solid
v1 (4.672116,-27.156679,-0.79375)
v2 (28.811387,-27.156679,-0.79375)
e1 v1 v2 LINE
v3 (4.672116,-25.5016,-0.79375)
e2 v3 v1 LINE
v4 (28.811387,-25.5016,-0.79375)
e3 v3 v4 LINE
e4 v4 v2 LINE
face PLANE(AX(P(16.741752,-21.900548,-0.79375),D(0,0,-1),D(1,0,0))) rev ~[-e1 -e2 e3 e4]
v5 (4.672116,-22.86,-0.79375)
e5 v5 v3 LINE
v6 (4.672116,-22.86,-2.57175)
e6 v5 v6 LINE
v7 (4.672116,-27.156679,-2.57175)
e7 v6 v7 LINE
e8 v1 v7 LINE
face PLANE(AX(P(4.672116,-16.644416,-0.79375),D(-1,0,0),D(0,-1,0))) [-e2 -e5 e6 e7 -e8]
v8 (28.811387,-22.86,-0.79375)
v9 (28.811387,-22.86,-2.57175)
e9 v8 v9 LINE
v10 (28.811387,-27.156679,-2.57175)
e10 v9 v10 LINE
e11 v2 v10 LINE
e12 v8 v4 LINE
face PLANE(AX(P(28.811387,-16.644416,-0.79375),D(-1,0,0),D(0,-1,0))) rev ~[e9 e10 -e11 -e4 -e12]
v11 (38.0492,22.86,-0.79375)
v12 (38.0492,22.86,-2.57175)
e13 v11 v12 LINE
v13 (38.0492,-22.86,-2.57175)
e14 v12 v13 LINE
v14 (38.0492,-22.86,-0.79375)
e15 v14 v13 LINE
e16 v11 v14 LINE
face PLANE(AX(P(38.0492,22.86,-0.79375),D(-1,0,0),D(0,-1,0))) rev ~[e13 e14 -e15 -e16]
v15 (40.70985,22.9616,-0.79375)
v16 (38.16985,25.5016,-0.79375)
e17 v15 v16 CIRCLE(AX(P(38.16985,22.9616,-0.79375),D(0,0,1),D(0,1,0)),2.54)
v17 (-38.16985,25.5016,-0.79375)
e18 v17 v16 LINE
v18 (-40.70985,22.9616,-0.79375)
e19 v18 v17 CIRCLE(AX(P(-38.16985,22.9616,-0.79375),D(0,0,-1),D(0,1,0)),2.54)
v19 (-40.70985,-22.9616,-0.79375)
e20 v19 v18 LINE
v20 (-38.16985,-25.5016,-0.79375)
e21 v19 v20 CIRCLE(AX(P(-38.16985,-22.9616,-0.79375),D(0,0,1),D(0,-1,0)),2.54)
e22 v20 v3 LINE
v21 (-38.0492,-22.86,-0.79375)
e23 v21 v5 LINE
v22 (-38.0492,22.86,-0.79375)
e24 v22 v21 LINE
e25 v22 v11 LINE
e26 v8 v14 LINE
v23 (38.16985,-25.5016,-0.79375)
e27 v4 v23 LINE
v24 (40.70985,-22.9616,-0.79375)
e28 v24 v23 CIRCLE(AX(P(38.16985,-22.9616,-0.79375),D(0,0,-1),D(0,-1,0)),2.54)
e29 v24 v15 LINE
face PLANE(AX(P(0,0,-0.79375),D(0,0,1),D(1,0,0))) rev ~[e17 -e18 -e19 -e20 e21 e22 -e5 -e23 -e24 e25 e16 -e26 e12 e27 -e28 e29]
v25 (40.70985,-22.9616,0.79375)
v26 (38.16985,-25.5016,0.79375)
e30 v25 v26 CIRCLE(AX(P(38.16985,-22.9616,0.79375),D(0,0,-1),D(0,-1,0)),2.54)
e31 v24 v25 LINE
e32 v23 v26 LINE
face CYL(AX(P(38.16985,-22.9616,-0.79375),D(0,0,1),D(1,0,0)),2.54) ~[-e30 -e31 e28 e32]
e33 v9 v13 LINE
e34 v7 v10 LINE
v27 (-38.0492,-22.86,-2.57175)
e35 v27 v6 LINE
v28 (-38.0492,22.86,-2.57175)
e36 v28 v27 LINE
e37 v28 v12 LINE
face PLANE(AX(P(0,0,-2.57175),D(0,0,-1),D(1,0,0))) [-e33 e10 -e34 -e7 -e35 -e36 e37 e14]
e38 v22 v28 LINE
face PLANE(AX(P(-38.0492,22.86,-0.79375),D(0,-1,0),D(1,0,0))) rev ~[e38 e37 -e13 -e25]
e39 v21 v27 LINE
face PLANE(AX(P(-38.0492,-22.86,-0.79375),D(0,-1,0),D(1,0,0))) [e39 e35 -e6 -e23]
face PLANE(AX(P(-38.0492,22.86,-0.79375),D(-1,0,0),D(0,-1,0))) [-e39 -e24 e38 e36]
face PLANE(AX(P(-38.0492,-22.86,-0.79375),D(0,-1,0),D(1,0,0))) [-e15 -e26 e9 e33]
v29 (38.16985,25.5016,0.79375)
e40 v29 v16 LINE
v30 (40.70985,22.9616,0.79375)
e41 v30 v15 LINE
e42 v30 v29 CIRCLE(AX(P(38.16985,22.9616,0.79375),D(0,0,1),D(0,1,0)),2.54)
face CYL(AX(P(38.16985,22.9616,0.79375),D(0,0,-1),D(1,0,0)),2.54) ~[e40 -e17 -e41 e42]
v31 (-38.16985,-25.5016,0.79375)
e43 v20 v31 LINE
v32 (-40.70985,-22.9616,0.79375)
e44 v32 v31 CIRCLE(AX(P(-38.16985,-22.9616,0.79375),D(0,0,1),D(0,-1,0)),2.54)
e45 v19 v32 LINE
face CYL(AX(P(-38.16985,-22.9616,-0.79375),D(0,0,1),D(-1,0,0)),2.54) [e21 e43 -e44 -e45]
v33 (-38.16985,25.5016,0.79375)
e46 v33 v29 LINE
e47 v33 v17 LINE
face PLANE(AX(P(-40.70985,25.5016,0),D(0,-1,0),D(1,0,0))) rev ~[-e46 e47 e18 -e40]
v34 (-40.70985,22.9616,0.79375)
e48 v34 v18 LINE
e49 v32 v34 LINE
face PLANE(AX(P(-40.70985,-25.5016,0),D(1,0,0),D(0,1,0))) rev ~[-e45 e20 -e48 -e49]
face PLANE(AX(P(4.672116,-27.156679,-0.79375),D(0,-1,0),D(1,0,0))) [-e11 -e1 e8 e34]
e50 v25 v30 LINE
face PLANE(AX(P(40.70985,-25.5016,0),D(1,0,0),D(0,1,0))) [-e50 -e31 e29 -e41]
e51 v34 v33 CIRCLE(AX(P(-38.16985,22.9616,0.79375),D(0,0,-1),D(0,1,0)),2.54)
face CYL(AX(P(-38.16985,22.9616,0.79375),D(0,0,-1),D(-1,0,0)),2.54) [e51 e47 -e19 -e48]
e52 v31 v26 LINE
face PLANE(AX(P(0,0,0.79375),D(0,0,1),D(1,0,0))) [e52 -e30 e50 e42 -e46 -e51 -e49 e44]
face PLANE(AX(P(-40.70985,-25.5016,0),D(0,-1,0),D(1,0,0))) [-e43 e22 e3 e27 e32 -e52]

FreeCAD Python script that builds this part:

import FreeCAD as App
import Part
import Sketcher

V = App.Vector
Q = App.Units.Quantity


def edges_at(feature, points):
    """Names of the edges that pass closest to the given points."""
    edges = feature.Shape.Edges
    near = lambda p: min(range(len(edges)), key=lambda i: edges[i].distToShape(Part.Vertex(*p))[0])
    return sorted({f"Edge{near(p) + 1}" for p in points})


def add_polygon(sketch, points):
    """Adds a closed chain of lines whose ends are joined by coincident constraints."""
    first, n = sketch.GeometryCount, len(points)
    for a, b in zip(points, points[1:] + points[:1]):
        sketch.addGeometry(Part.LineSegment(App.Vector(*a, 0), App.Vector(*b, 0)), False)
    for i in range(n):
        sketch.addConstraint(Sketcher.Constraint("Coincident", first + i, 2, first + (i + 1) % n, 1))

doc = App.newDocument("Part")
params = doc.addObject("Spreadsheet::Sheet", "Params")
for row, (alias, value) in enumerate([
    ("sketch1_height", "2.008 in"),
    ("pad1_length", "0.0625 in"),
    ("fillet_radius", "0.1 in"),
    ("sketch2_height", "1.8 in"),
    ("sketch2_width", "2.996 in"),
    ("pad2_length", "0.07 in"),
], start=1):
    params.set(f"A{row}", alias)
    params.set(f"B{row}", "=" + value)
    params.setAlias(f"B{row}", alias)

body = doc.addObject("PartDesign::Body", "Body")

sketch1 = body.newObject("Sketcher::SketchObject", "Sketch")
sketch1.AttachmentSupport = (doc.getObject("XY_Plane"), [""])
sketch1.MapMode = "FlatFace"
add_polygon(sketch1, [(-41, 26), (-41, -26), (41, -26), (41, 26)])
sketch1.addConstraint(Sketcher.Constraint("Vertical", 0))
sketch1.addConstraint(Sketcher.Constraint("Horizontal", 1))
sketch1.addConstraint(Sketcher.Constraint("Vertical", 2))
sketch1.addConstraint(Sketcher.Constraint("Horizontal", 3))
sketch1.addConstraint(Sketcher.Constraint("Symmetric", 0, 2, 2, 2, -1, 1))
sketch1.addConstraint(Sketcher.Constraint("DistanceY", 0, 2, 0, 1, Q("2.008 in")))
sketch1.addConstraint(Sketcher.Constraint("DistanceX", 1, 1, 1, 2, Q("3.2055 in")))
sketch1.setExpression("Constraints[9]", "Params.sketch1_height")
pad1 = body.newObject("PartDesign::Pad", "Pad")
pad1.Profile = sketch1
pad1.setExpression("Length", "Params.pad1_length")
pad1.Midplane = True
doc.recompute()

fillet = body.newObject("PartDesign::Fillet", "Fillet")
fillet.Base = (pad1, edges_at(pad1, [
    (40.71, -25.502, 0),
    (40.71, 25.502, 0),
    (-40.71, -25.502, 0),
    (-40.71, 25.502, 0),
]))
fillet.setExpression("Radius", "Params.fillet_radius")

sketch2 = body.newObject("Sketcher::SketchObject", "Sketch001")
sketch2.AttachmentSupport = (doc.getObject("XY_Plane"), [""])
sketch2.MapMode = "FlatFace"
sketch2.AttachmentOffset = App.Placement(V(0, 0, -0.03125 * 25.4), App.Rotation())
add_polygon(sketch2, [(-38, -23), (-38, 23), (38, 23), (38, -23)])
sketch2.addConstraint(Sketcher.Constraint("Vertical", 0))
sketch2.addConstraint(Sketcher.Constraint("Horizontal", 1))
sketch2.addConstraint(Sketcher.Constraint("Vertical", 2))
sketch2.addConstraint(Sketcher.Constraint("Horizontal", 3))
sketch2.addConstraint(Sketcher.Constraint("Symmetric", 0, 2, 2, 2, -1, 1))
sketch2.addConstraint(Sketcher.Constraint("DistanceY", 0, 1, 0, 2, Q("1.8 in")))
sketch2.addConstraint(Sketcher.Constraint("DistanceX", 1, 1, 1, 2, Q("2.996 in")))
sketch2.setExpression("Constraints[9]", "Params.sketch2_height")
sketch2.setExpression("Constraints[10]", "Params.sketch2_width")
pad2 = body.newObject("PartDesign::Pad", "Pad001")
pad2.Profile = sketch2
pad2.setExpression("Length", "Params.pad2_length")
pad2.Reversed = True

sketch3 = body.newObject("Sketcher::SketchObject", "Sketch002")
sketch3.AttachmentSupport = (doc.getObject("XY_Plane"), [""])
sketch3.MapMode = "FlatFace"
sketch3.AttachmentOffset = App.Placement(V(0, 0, -0.03125 * 25.4), App.Rotation())
add_polygon(sketch3, [(5, -27), (5, -17), (29, -17), (29, -27)])
sketch3.addConstraint(Sketcher.Constraint("Vertical", 0))
sketch3.addConstraint(Sketcher.Constraint("Horizontal", 1))
sketch3.addConstraint(Sketcher.Constraint("Vertical", 2))
sketch3.addConstraint(Sketcher.Constraint("Horizontal", 3))
sketch3.addConstraint(Sketcher.Constraint("DistanceX", 1, 1, 1, 2, 24.139271))
sketch3.addConstraint(Sketcher.Constraint("DistanceY", 0, 1, 0, 2, 10.512263))
sketch3.addConstraint(Sketcher.Constraint("DistanceY", 2, 2, -1, 1, 27.156679))
sketch3.addConstraint(Sketcher.Constraint("DistanceX", -1, 1, 0, 2, 4.672116))
pad3 = body.newObject("PartDesign::Pad", "Pad002")
pad3.Profile = sketch3
pad3.Type = "UpToLast"
pad3.Reversed = True

doc.recompute()
